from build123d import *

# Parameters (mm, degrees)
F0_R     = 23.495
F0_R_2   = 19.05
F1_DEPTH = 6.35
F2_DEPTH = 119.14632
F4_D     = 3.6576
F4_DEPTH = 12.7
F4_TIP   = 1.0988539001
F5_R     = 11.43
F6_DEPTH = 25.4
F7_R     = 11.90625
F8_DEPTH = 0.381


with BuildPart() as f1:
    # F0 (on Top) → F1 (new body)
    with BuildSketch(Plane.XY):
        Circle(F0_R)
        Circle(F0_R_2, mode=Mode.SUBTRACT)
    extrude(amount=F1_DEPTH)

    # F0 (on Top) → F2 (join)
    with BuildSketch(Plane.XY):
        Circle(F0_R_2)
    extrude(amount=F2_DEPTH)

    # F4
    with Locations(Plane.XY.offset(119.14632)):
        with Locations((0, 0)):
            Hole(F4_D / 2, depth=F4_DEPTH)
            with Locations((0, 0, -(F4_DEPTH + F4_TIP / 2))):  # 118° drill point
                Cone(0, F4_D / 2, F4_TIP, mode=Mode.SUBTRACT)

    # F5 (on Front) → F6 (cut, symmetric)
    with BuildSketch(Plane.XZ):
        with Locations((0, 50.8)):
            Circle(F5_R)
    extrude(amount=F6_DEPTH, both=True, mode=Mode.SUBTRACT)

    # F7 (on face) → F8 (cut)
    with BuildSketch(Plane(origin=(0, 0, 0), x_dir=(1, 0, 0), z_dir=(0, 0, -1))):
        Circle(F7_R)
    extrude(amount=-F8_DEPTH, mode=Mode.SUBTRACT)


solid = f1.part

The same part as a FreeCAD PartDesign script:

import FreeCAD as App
import Part
import Sketcher
Q = App.Units.Quantity

doc = App.newDocument("Part")
body = doc.addObject("PartDesign::Body", "Body")

# Sketch on XY plane
sketch1 = body.newObject("Sketcher::SketchObject", "Sketch")
sketch1.AttachmentSupport = (doc.getObject("XY_Plane"), [""])
sketch1.MapMode = "FlatFace"
sketch1.addGeometry([
    Part.Circle(App.Vector(0, 0, 0), App.Vector(0, 0, 1), 23),
    Part.Circle(App.Vector(0, 0, 0), App.Vector(0, 0, 1), 19),
], False)
sketch1.addConstraint([
    Sketcher.Constraint("Coincident", 0, 3, -1, 1),
    Sketcher.Constraint("Coincident", 1, 3, -1, 1),
    Sketcher.Constraint("Diameter", 1, Q("1.5 in")),
    Sketcher.Constraint("Diameter", 0, Q("1.85 in")),
])
pad1 = body.newObject("PartDesign::Pad", "Pad")
pad1.Profile = sketch1
pad1.Length = Q("0.25 in")

# Sketch on XY plane
sketch2 = body.newObject("Sketcher::SketchObject", "Sketch001")
sketch2.AttachmentSupport = (doc.getObject("XY_Plane"), [""])
sketch2.MapMode = "FlatFace"
sketch2.addGeometry(Part.Circle(App.Vector(0, 0, 0), App.Vector(0, 0, 1), 19), False)
sketch2.addConstraint([
    Sketcher.Constraint("Coincident", 0, 3, -1, 1),
    Sketcher.Constraint("Diameter", 0, Q("1.5 in")),
])
pad2 = body.newObject("PartDesign::Pad", "Pad001")
pad2.Profile = sketch2
pad2.Length = Q("4.6908 in")

# Sketch on XY plane
sketch3 = body.newObject("Sketcher::SketchObject", "Sketch002")
sketch3.AttachmentSupport = (doc.getObject("XY_Plane"), [""])
sketch3.MapMode = "FlatFace"
sketch3.AttachmentOffset = App.Placement(App.Vector(0, 0, 4.6908 * 25.4), App.Rotation())
sketch3.addGeometry(Part.Circle(App.Vector(0, 0, 0), App.Vector(0, 0, 1), 1.8), False)
sketch3.addConstraint([
    Sketcher.Constraint("Coincident", 0, 3, -1, 1),
    Sketcher.Constraint("Diameter", 0, Q("0.144 in")),
])
doc.recompute()
hole = body.newObject("PartDesign::Hole", "Hole")
hole.Profile = sketch3
hole.ThreadType = "None"
hole.Diameter = Q("0.144 in")
hole.DepthType = "Dimension"
hole.Depth = Q("0.5 in")
hole.DrillPoint = "Angled"
hole.DrillPointAngle = 118

# Sketch on XZ plane
sketch4 = body.newObject("Sketcher::SketchObject", "Sketch003")
sketch4.AttachmentSupport = (doc.getObject("XZ_Plane"), [""])
sketch4.MapMode = "FlatFace"
sketch4.addGeometry(Part.Circle(App.Vector(0, 51, 0), App.Vector(0, 0, 1), 11), False)
sketch4.addConstraint([
    Sketcher.Constraint("PointOnObject", 0, 3, -2),
    Sketcher.Constraint("Diameter", 0, Q("0.9 in")),
    Sketcher.Constraint("DistanceY", -1, 1, 0, 3, Q("2 in")),
])
pocket1 = body.newObject("PartDesign::Pocket", "Pocket")
pocket1.Profile = sketch4
pocket1.Length = Q("2 in")
pocket1.Midplane = True

# Sketch on XY plane
sketch5 = body.newObject("Sketcher::SketchObject", "Sketch004")
sketch5.AttachmentSupport = (doc.getObject("XY_Plane"), [""])
sketch5.MapMode = "FlatFace"
sketch5.addGeometry(Part.Circle(App.Vector(0, 0, 0), App.Vector(0, 0, 1), 12), False)
sketch5.addConstraint([
    Sketcher.Constraint("Coincident", 0, 3, -1, 1),
    Sketcher.Constraint("Diameter", 0, Q("0.9375 in")),
])
pocket2 = body.newObject("PartDesign::Pocket", "Pocket001")
pocket2.Profile = sketch5
pocket2.Length = Q("0.015 in")
pocket2.Reversed = True

doc.recompute()
